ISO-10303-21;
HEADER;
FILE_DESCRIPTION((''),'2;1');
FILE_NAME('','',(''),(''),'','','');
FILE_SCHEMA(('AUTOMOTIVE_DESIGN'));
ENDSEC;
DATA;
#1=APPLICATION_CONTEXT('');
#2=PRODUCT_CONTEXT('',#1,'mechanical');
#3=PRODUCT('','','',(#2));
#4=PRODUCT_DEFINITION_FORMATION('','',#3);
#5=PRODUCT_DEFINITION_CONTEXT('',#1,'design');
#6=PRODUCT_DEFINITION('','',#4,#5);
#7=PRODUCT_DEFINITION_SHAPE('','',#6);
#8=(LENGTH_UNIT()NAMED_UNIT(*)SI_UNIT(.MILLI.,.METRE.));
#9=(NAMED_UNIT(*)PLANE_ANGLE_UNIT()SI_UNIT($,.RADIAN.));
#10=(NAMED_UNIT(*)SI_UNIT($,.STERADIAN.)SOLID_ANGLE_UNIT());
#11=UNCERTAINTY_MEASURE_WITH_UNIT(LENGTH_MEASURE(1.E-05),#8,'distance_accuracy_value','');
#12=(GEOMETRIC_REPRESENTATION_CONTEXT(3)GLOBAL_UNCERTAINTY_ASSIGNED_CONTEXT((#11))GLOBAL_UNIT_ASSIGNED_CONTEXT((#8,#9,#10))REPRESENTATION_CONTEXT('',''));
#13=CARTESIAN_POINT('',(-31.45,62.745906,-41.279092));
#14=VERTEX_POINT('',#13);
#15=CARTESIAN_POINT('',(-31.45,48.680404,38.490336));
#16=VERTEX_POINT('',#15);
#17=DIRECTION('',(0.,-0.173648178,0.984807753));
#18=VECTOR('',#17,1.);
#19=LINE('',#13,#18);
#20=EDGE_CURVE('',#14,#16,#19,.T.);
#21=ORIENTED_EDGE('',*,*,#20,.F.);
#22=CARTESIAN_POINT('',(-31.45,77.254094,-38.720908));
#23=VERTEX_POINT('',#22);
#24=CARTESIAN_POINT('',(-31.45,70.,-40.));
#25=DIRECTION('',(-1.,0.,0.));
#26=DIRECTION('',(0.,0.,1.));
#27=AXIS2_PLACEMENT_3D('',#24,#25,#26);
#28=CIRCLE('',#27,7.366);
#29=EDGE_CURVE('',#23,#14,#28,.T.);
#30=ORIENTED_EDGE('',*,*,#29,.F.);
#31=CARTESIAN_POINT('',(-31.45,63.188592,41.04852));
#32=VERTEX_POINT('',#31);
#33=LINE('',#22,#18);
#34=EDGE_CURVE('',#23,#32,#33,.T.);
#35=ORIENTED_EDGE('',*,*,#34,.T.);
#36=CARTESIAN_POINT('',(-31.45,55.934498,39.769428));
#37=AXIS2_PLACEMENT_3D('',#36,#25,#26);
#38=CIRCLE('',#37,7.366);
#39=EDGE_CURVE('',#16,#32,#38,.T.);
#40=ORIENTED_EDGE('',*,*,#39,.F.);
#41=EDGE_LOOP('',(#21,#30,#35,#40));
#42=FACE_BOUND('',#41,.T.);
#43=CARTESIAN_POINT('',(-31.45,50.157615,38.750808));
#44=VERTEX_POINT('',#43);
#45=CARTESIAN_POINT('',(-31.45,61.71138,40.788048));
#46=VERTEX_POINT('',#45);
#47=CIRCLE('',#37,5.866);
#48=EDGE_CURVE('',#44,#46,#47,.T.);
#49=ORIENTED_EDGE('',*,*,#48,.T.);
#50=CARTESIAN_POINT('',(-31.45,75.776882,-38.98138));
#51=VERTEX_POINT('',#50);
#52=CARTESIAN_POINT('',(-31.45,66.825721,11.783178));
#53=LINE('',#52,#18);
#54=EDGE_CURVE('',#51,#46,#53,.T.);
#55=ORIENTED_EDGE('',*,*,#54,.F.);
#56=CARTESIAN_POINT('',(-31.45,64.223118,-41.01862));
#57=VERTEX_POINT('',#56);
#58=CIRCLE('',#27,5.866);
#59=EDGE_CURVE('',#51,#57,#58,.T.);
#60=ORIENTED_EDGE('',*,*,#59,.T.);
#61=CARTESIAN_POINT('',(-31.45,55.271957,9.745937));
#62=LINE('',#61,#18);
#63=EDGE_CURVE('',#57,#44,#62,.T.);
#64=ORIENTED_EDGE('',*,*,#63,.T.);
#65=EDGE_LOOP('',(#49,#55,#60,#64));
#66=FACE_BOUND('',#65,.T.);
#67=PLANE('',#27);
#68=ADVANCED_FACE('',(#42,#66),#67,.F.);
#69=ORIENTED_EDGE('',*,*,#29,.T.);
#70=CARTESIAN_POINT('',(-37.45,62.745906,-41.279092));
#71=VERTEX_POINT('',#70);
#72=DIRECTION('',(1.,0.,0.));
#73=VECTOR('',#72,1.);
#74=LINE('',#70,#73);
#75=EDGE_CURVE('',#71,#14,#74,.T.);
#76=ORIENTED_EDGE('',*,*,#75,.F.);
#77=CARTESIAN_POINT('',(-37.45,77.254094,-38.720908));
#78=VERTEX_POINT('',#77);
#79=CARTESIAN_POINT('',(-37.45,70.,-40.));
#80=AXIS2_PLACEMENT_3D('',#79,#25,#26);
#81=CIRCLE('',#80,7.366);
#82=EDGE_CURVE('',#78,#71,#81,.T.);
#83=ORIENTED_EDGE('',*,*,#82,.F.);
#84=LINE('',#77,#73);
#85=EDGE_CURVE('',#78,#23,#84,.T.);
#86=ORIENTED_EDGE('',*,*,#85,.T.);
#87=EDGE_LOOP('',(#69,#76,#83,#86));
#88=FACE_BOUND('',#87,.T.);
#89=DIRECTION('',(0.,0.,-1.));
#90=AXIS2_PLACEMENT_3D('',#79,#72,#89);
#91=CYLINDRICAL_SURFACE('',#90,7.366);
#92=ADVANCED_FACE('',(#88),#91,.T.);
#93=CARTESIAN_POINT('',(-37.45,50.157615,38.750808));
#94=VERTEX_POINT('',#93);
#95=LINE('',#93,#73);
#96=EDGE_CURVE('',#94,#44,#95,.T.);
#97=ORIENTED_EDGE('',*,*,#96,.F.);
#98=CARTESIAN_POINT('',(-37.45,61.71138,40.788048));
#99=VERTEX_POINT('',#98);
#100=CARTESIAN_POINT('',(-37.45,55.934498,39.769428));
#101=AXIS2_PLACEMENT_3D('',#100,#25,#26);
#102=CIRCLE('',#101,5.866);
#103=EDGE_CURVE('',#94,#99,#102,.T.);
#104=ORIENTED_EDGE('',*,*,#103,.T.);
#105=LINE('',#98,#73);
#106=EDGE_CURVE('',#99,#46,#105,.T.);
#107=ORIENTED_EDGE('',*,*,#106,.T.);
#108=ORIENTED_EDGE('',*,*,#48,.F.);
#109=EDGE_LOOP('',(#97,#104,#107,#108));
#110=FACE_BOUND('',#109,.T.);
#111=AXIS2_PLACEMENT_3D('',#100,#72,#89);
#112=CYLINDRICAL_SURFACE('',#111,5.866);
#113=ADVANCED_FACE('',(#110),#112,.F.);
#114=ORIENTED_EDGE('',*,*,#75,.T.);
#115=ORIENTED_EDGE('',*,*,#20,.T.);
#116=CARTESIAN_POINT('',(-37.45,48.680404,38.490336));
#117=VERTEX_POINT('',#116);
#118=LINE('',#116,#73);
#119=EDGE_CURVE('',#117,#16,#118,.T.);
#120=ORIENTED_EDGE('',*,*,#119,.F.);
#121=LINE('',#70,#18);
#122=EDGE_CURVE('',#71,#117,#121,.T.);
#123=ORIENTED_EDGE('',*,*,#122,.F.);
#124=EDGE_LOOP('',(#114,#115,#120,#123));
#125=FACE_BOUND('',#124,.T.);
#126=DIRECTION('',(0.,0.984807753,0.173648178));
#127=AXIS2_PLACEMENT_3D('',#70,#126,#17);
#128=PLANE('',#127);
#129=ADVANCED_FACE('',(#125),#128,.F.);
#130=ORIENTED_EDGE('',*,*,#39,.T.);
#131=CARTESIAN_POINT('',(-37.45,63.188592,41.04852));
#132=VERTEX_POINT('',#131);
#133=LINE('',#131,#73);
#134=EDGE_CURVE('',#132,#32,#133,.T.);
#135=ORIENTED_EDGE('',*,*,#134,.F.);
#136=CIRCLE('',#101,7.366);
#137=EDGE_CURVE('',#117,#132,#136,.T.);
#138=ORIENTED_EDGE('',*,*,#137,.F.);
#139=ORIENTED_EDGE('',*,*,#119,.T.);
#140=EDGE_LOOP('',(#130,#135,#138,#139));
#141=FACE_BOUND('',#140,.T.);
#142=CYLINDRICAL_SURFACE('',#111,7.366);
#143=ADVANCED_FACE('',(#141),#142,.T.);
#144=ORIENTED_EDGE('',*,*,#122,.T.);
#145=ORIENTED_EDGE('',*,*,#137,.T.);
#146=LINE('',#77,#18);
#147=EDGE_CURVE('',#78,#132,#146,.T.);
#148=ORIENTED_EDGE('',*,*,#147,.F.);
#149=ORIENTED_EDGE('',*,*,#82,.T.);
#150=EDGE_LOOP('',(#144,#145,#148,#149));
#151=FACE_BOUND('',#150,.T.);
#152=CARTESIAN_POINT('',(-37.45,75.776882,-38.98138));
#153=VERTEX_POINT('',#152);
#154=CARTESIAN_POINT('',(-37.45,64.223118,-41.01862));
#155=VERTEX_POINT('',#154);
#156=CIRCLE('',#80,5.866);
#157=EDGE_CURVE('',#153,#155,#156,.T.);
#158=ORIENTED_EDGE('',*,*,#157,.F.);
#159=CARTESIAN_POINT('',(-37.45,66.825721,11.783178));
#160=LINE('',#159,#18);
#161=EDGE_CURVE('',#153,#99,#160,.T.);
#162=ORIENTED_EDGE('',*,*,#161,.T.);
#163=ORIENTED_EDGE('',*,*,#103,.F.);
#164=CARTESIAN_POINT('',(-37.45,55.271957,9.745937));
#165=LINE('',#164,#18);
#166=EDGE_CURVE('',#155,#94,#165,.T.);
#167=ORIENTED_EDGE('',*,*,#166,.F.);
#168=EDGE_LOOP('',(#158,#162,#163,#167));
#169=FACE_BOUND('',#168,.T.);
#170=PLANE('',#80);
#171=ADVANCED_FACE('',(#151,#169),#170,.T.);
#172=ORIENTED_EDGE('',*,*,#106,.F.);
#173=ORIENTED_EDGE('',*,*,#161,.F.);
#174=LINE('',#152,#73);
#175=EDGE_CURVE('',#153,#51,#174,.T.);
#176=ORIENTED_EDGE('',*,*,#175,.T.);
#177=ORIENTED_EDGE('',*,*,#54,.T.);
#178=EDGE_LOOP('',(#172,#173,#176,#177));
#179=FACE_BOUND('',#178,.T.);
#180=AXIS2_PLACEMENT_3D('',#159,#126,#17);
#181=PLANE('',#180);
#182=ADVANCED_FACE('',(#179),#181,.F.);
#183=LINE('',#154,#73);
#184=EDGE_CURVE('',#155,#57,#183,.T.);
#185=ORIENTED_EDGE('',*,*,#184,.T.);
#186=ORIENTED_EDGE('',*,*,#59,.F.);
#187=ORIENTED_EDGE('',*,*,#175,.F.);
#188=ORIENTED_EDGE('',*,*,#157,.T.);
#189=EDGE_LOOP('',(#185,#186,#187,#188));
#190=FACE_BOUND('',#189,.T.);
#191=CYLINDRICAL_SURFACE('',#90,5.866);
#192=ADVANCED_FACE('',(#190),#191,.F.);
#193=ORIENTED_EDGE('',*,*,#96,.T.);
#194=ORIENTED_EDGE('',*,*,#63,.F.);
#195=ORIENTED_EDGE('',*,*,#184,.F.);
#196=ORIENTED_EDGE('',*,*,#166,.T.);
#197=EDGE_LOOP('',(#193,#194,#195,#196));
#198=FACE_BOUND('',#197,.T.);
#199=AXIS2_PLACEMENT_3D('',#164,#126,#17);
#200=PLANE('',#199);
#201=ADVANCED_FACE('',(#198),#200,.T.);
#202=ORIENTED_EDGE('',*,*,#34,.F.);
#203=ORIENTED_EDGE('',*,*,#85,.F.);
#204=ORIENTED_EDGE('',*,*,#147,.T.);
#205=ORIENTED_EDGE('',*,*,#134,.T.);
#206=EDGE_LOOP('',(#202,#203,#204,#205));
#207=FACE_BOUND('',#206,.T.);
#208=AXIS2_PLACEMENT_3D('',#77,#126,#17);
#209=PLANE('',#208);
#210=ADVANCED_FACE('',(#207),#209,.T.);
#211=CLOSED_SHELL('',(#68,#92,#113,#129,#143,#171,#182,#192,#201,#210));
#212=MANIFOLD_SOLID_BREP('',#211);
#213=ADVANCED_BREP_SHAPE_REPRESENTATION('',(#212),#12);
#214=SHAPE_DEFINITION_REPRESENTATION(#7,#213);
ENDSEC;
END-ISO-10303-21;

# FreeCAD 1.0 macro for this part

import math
import FreeCAD as App
import Part
import Sketcher

V = App.Vector
Q = App.Units.Quantity

doc = App.newDocument("Part")
body = doc.addObject("PartDesign::Body", "Body")

sketch1 = doc.addObject("Sketcher::SketchObject", "Sketch")
body.addObject(sketch1)
sketch1.AttachmentSupport = (doc.YZ_Plane, [""])
sketch1.MapMode = "FlatFace"
sketch1.AttachmentOffset = App.Placement(V(0, 0, -34.45), App.Rotation())
sketch1.addGeometry([
    Part.LineSegment(V(63, 41, 0), V(77, -39, 0)),
    Part.ArcOfCircle(Part.Circle(V(70, -40, 0), V(0, 0, 1), 7), math.radians(-170), math.radians(10)),
    Part.LineSegment(V(63, -41, 0), V(49, 38, 0)),
    Part.ArcOfCircle(Part.Circle(V(56, 40, 0), V(0, 0, 1), 7), math.radians(10), math.radians(190)),
    Part.LineSegment(V(76, -39, 0), V(62, 41, 0)),
    Part.ArcOfCircle(Part.Circle(V(56, 40, 0), V(0, 0, 1), 6), math.radians(10), math.radians(190)),
    Part.LineSegment(V(50, 39, 0), V(64, -41, 0)),
    Part.ArcOfCircle(Part.Circle(V(70, -40, 0), V(0, 0, 1), 6), math.radians(-170), math.radians(10)),
], False)
sketch1.addConstraint([
    Sketcher.Constraint("Tangent", 0, 2, 1, 2),
    Sketcher.Constraint("Tangent", 1, 1, 2, 1),
    Sketcher.Constraint("Tangent", 2, 2, 3, 2),
    Sketcher.Constraint("Tangent", 3, 1, 0, 1),
    Sketcher.Constraint("Tangent", 4, 2, 5, 1),
    Sketcher.Constraint("Tangent", 5, 2, 6, 1),
    Sketcher.Constraint("Tangent", 6, 2, 7, 1),
    Sketcher.Constraint("Tangent", 7, 2, 4, 1),
    Sketcher.Constraint("Coincident", 5, 3, 3, 3),
    Sketcher.Constraint("Coincident", 7, 3, 1, 3),
    Sketcher.Constraint("Equal", 1, 3),
    Sketcher.Constraint("Equal", 5, 7),
    Sketcher.Constraint("Angle", 0, Q("-80 deg")),
    Sketcher.Constraint("Distance", 0, 81.0),
    Sketcher.Constraint("DistanceX", -1, 1, 1, 3, 70.0),
    Sketcher.Constraint("DistanceY", 1, 3, -1, 1, 40.0),
    Sketcher.Constraint("Radius", 1, 7.366),
    Sketcher.Constraint("Radius", 5, 5.866),
])
pad1 = doc.addObject("PartDesign::Pad", "Pad")
body.addObject(pad1)
pad1.Profile = sketch1
pad1.Length = 6
pad1.Midplane = True

doc.recompute()
